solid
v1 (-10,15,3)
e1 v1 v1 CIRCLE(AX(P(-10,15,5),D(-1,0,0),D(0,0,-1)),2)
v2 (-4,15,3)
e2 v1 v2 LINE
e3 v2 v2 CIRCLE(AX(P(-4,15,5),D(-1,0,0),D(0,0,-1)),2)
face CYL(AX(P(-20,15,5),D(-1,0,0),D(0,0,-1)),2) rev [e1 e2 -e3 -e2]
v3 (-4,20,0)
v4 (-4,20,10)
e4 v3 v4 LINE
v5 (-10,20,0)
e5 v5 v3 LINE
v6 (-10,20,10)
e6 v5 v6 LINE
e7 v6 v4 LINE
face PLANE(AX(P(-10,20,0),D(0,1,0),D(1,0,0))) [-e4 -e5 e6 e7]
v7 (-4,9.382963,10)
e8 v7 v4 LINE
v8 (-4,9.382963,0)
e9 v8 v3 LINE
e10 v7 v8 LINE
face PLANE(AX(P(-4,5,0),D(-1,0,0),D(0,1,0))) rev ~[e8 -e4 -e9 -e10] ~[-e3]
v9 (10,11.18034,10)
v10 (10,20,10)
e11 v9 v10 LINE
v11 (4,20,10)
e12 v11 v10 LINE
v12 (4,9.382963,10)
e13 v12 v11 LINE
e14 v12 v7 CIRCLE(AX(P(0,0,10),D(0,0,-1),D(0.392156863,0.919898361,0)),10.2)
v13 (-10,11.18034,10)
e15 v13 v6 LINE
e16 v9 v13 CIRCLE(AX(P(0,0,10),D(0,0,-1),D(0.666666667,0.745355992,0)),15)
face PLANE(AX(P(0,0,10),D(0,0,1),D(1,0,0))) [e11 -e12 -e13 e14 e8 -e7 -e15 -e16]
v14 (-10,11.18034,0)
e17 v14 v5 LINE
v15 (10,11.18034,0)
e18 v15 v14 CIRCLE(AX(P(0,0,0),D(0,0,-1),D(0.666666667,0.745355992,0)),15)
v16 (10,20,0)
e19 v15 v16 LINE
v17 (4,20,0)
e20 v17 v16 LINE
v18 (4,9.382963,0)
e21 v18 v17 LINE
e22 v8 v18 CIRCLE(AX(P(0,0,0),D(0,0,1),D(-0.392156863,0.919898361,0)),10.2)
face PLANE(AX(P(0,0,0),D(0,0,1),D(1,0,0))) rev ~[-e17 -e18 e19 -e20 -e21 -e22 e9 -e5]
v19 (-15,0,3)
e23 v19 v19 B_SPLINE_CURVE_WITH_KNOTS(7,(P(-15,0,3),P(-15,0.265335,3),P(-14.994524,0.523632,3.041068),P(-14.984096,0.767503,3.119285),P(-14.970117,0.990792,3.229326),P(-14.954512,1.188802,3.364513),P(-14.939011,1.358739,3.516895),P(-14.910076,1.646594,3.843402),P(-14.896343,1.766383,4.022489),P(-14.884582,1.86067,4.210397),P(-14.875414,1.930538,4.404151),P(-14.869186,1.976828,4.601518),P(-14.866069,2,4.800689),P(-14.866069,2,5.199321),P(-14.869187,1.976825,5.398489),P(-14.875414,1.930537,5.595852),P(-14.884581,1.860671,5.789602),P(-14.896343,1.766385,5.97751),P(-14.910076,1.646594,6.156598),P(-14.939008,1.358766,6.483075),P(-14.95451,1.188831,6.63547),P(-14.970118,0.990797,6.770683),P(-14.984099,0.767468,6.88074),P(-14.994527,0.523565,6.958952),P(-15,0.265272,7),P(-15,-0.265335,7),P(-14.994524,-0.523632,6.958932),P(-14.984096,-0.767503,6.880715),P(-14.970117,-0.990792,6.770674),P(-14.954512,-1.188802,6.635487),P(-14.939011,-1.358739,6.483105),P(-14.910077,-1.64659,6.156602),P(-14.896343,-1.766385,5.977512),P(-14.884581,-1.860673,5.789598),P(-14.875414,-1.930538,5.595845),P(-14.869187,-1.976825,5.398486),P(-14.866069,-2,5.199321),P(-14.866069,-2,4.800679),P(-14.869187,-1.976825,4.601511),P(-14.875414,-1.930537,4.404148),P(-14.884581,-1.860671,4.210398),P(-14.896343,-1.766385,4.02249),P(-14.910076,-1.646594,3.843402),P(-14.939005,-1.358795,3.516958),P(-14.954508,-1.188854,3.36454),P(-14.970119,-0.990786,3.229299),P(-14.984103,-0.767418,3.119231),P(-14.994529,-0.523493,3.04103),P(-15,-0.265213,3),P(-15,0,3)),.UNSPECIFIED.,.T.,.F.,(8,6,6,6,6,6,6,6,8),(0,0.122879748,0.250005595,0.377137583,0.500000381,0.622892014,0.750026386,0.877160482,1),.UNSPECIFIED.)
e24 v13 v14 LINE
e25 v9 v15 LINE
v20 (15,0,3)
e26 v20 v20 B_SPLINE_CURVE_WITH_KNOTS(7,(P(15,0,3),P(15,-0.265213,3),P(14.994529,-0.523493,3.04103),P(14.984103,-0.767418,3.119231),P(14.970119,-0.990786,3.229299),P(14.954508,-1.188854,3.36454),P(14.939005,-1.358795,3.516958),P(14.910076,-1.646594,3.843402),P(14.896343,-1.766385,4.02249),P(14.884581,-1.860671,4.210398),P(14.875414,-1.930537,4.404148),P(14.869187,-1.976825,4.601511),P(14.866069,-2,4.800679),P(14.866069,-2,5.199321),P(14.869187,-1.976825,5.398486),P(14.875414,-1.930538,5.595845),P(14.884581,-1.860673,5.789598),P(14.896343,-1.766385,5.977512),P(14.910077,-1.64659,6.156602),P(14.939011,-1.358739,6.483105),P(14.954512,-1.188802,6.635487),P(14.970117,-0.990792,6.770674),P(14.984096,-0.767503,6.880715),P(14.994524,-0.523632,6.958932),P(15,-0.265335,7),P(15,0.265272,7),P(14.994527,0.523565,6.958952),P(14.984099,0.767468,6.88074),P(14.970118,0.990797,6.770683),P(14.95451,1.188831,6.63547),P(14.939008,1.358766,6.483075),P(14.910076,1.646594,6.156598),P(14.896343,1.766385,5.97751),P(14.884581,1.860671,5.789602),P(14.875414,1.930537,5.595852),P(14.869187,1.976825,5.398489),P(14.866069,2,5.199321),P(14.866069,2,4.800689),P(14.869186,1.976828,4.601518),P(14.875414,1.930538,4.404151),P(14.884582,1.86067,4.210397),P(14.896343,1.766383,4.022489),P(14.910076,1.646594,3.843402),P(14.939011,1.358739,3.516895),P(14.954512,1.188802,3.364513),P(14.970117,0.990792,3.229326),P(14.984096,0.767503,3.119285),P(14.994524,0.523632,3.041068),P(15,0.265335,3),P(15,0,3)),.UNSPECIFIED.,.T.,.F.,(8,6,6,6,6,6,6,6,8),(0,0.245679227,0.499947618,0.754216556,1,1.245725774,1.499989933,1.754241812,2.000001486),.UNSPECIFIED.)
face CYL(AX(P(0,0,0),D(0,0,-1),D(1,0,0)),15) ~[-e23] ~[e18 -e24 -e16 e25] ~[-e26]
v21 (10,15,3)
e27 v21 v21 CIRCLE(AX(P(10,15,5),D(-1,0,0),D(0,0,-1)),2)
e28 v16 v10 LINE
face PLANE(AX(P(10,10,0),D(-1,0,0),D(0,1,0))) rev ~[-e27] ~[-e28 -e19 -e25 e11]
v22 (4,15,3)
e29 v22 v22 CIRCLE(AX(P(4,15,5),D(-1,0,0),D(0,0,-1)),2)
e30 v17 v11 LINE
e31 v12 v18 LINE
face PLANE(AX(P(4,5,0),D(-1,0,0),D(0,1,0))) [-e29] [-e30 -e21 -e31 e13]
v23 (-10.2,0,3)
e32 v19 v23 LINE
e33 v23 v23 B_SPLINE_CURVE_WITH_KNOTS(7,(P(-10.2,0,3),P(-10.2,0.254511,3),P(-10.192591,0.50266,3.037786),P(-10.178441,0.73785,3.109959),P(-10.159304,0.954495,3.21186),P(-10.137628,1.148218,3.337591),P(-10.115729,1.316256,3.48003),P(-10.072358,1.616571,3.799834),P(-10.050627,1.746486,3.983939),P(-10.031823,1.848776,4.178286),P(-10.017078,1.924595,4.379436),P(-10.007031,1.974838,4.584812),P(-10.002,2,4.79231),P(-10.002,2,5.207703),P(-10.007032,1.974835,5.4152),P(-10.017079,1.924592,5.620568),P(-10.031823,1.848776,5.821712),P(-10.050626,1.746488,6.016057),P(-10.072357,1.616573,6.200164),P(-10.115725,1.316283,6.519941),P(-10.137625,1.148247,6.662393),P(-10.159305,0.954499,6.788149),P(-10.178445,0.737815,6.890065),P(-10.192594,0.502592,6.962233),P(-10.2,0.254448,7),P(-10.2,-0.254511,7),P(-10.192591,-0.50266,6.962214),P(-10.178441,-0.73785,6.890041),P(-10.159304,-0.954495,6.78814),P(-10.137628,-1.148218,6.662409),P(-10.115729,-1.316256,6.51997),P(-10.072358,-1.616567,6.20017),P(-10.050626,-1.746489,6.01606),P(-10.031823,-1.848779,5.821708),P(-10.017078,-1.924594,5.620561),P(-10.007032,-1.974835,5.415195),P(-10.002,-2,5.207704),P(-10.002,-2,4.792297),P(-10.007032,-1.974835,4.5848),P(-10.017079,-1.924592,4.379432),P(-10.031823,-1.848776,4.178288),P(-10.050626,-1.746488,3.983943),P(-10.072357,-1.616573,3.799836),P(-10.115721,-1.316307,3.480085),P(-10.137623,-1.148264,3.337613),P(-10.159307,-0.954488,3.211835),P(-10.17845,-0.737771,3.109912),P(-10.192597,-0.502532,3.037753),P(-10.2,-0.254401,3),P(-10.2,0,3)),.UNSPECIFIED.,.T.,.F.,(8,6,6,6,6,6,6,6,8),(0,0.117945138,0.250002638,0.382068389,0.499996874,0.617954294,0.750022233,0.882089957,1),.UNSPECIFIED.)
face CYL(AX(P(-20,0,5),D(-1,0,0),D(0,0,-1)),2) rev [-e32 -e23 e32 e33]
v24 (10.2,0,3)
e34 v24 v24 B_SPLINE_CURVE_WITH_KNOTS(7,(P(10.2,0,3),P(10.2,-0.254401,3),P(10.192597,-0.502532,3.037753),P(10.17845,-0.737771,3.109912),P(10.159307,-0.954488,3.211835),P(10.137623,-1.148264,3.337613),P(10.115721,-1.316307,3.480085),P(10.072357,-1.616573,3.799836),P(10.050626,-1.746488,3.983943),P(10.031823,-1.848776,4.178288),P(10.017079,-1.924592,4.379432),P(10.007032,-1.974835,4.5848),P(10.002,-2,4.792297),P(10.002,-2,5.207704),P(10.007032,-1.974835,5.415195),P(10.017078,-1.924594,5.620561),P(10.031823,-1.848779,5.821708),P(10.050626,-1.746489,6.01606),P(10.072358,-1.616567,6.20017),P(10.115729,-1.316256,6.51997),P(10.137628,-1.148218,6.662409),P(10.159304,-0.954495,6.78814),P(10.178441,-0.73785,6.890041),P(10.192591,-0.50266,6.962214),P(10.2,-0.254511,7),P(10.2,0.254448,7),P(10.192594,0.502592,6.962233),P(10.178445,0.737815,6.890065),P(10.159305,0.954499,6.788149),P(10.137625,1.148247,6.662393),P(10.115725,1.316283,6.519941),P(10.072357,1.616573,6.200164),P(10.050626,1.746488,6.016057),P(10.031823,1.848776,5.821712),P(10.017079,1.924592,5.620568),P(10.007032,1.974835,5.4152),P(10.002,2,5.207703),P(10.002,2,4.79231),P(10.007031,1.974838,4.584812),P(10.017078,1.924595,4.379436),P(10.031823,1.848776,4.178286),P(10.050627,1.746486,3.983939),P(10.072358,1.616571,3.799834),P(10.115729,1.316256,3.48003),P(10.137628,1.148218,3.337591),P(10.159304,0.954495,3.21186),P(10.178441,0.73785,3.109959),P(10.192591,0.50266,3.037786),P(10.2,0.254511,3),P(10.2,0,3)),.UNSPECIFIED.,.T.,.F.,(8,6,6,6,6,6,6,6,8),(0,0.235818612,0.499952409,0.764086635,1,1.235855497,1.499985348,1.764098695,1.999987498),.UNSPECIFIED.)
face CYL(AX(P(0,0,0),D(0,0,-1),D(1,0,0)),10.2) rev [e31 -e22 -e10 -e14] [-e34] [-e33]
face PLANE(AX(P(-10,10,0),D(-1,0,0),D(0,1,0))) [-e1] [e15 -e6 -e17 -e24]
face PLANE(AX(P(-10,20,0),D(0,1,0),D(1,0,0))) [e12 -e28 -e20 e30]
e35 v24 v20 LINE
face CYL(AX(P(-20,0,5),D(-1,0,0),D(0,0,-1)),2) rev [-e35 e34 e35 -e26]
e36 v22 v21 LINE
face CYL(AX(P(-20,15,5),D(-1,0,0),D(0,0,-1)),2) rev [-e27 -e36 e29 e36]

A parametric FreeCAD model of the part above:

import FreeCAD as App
import Part
import Sketcher

V = App.Vector

doc = App.newDocument("Part")
params = doc.addObject("Spreadsheet::Sheet", "Params")
for row, (alias, value) in enumerate([
    ("sketch1_diameter", "4 mm"),
    ("pad1_length", "40 mm"),
    ("sketch2_diameter", "4 mm"),
    ("pad2_length", "40 mm"),
    ("sketch3_diameter", "20.4 mm"),
    ("pad3_length", "10 mm"),
    ("sketch4_width", "8 mm"),
    ("sketch4_height", "15 mm"),
    ("pad4_length", "10 mm"),
    ("sketch5_width", "20 mm"),
    ("sketch5_height", "10 mm"),
    ("pad5_length", "10 mm"),
    ("sketch6_diameter", "30 mm"),
    ("pad6_length", "10 mm"),
], start=1):
    params.set(f"A{row}", alias)
    params.set(f"B{row}", "=" + value)
    params.setAlias(f"B{row}", alias)

body = doc.addObject("PartDesign::Body", "Body")

# Sketch on YZ plane
sketch1 = body.newObject("Sketcher::SketchObject", "Sketch")
sketch1.AttachmentSupport = (doc.getObject("YZ_Plane"), [""])
sketch1.MapMode = "FlatFace"
sketch1.AttachmentOffset = App.Placement(V(0, 0, -20), App.Rotation())
sketch1.addGeometry(Part.Circle(V(15, 5, 0), V(0, 0, 1), 2), False)
sketch1.addConstraint(Sketcher.Constraint("Diameter", 0, 4.0))
sketch1.addConstraint(Sketcher.Constraint("DistanceX", -1, 1, 0, 3, 15.0))
sketch1.addConstraint(Sketcher.Constraint("DistanceY", -1, 1, 0, 3, 5.0))
sketch1.setExpression("Constraints[0]", "Params.sketch1_diameter")
pad1 = body.newObject("PartDesign::Pad", "Pad")
pad1.Profile = sketch1
pad1.setExpression("Length", "Params.pad1_length")
body2 = doc.addObject("PartDesign::Body", "Body001")

# Sketch on YZ plane
sketch2 = body2.newObject("Sketcher::SketchObject", "Sketch001")
sketch2.AttachmentSupport = (doc.getObject("YZ_Plane001"), [""])
sketch2.MapMode = "FlatFace"
sketch2.AttachmentOffset = App.Placement(V(0, 0, -20), App.Rotation())
sketch2.addGeometry(Part.Circle(V(0, 5, 0), V(0, 0, 1), 2), False)
sketch2.addConstraint(Sketcher.Constraint("PointOnObject", 0, 3, -2))
sketch2.addConstraint(Sketcher.Constraint("Diameter", 0, 4.0))
sketch2.addConstraint(Sketcher.Constraint("DistanceY", -1, 1, 0, 3, 5.0))
sketch2.setExpression("Constraints[1]", "Params.sketch2_diameter")
pad2 = body2.newObject("PartDesign::Pad", "Pad001")
pad2.Profile = sketch2
pad2.setExpression("Length", "Params.pad2_length")
body3 = doc.addObject("PartDesign::Body", "Body002")

# Sketch on XY plane
sketch3 = body3.newObject("Sketcher::SketchObject", "Sketch002")
sketch3.AttachmentSupport = (doc.getObject("XY_Plane002"), [""])
sketch3.MapMode = "FlatFace"
sketch3.addGeometry(Part.Circle(V(0, 0, 0), V(0, 0, 1), 10), False)
sketch3.addConstraint(Sketcher.Constraint("Coincident", 0, 3, -1, 1))
sketch3.addConstraint(Sketcher.Constraint("Diameter", 0, 20.4))
sketch3.setExpression("Constraints[1]", "Params.sketch3_diameter")
pad3 = body3.newObject("PartDesign::Pad", "Pad002")
pad3.Profile = sketch3
pad3.setExpression("Length", "Params.pad3_length")
body4 = doc.addObject("PartDesign::Body", "Body003")
body4.AllowCompound = True

# Sketch on XY plane
sketch4 = body4.newObject("Sketcher::SketchObject", "Sketch003")
sketch4.AttachmentSupport = (doc.getObject("XY_Plane003"), [""])
sketch4.MapMode = "FlatFace"
sketch4.addGeometry(Part.LineSegment(V(-4, 20, 0), V(-4, 5, 0)), False)
sketch4.addGeometry(Part.LineSegment(V(-4, 5, 0), V(4, 5, 0)), False)
sketch4.addGeometry(Part.LineSegment(V(4, 5, 0), V(4, 20, 0)), False)
sketch4.addGeometry(Part.LineSegment(V(4, 20, 0), V(-4, 20, 0)), False)
sketch4.addConstraint(Sketcher.Constraint("Coincident", 0, 2, 1, 1))
sketch4.addConstraint(Sketcher.Constraint("Coincident", 1, 2, 2, 1))
sketch4.addConstraint(Sketcher.Constraint("Coincident", 2, 2, 3, 1))
sketch4.addConstraint(Sketcher.Constraint("Coincident", 3, 2, 0, 1))
sketch4.addConstraint(Sketcher.Constraint("Vertical", 0))
sketch4.addConstraint(Sketcher.Constraint("Horizontal", 1))
sketch4.addConstraint(Sketcher.Constraint("Vertical", 2))
sketch4.addConstraint(Sketcher.Constraint("Horizontal", 3))
sketch4.addConstraint(Sketcher.Constraint("DistanceX", 1, 1, 1, 2, 8.0))
sketch4.addConstraint(Sketcher.Constraint("DistanceY", 0, 2, 0, 1, 15.0))
sketch4.addConstraint(Sketcher.Constraint("DistanceX", 0, 2, -1, 1, 4.0))
sketch4.addConstraint(Sketcher.Constraint("DistanceY", -1, 1, 0, 2, 5.0))
sketch4.setExpression("Constraints[8]", "Params.sketch4_width")
sketch4.setExpression("Constraints[9]", "Params.sketch4_height")
pad4 = body4.newObject("PartDesign::Pad", "Pad003")
pad4.Profile = sketch4
pad4.setExpression("Length", "Params.pad4_length")
doc.recompute()

boolean = body4.newObject("PartDesign::Boolean", "Boolean")
boolean.Type = "Fuse"
boolean.addObjects([body])
doc.recompute()

boolean2 = body4.newObject("PartDesign::Boolean", "Boolean001")
boolean2.Type = "Fuse"
boolean2.addObjects([body2])
doc.recompute()

boolean3 = body4.newObject("PartDesign::Boolean", "Boolean002")
boolean3.Type = "Fuse"
boolean3.addObjects([body3])
body5 = doc.addObject("PartDesign::Body", "Body004")

# Sketch on XY plane
sketch5 = body5.newObject("Sketcher::SketchObject", "Sketch004")
sketch5.AttachmentSupport = (doc.getObject("XY_Plane004"), [""])
sketch5.MapMode = "FlatFace"
sketch5.addGeometry(Part.LineSegment(V(-10, 20, 0), V(-10, 10, 0)), False)
sketch5.addGeometry(Part.LineSegment(V(-10, 10, 0), V(10, 10, 0)), False)
sketch5.addGeometry(Part.LineSegment(V(10, 10, 0), V(10, 20, 0)), False)
sketch5.addGeometry(Part.LineSegment(V(10, 20, 0), V(-10, 20, 0)), False)
sketch5.addConstraint(Sketcher.Constraint("Coincident", 0, 2, 1, 1))
sketch5.addConstraint(Sketcher.Constraint("Coincident", 1, 2, 2, 1))
sketch5.addConstraint(Sketcher.Constraint("Coincident", 2, 2, 3, 1))
sketch5.addConstraint(Sketcher.Constraint("Coincident", 3, 2, 0, 1))
sketch5.addConstraint(Sketcher.Constraint("Vertical", 0))
sketch5.addConstraint(Sketcher.Constraint("Horizontal", 1))
sketch5.addConstraint(Sketcher.Constraint("Vertical", 2))
sketch5.addConstraint(Sketcher.Constraint("Horizontal", 3))
sketch5.addConstraint(Sketcher.Constraint("DistanceX", 1, 1, 1, 2, 20.0))
sketch5.addConstraint(Sketcher.Constraint("DistanceY", 0, 2, 0, 1, 10.0))
sketch5.addConstraint(Sketcher.Constraint("DistanceX", 0, 2, -1, 1, 10.0))
sketch5.addConstraint(Sketcher.Constraint("DistanceY", -1, 1, 0, 2, 10.0))
sketch5.setExpression("Constraints[8]", "Params.sketch5_width")
sketch5.setExpression("Constraints[9]", "Params.sketch5_height")
pad5 = body5.newObject("PartDesign::Pad", "Pad004")
pad5.Profile = sketch5
pad5.setExpression("Length", "Params.pad5_length")
body6 = doc.addObject("PartDesign::Body", "Body005")

# Sketch on XY plane
sketch6 = body6.newObject("Sketcher::SketchObject", "Sketch005")
sketch6.AttachmentSupport = (doc.getObject("XY_Plane005"), [""])
sketch6.MapMode = "FlatFace"
sketch6.addGeometry(Part.Circle(V(0, 0, 0), V(0, 0, 1), 15), False)
sketch6.addConstraint(Sketcher.Constraint("Coincident", 0, 3, -1, 1))
sketch6.addConstraint(Sketcher.Constraint("Diameter", 0, 30.0))
sketch6.setExpression("Constraints[1]", "Params.sketch6_diameter")
pad6 = body6.newObject("PartDesign::Pad", "Pad005")
pad6.Profile = sketch6
pad6.setExpression("Length", "Params.pad6_length")
doc.recompute()

boolean4 = body6.newObject("PartDesign::Boolean", "Boolean003")
boolean4.Type = "Fuse"
boolean4.addObjects([body5])
doc.recompute()

boolean5 = body6.newObject("PartDesign::Boolean", "Boolean004")
boolean5.Type = "Cut"
boolean5.addObjects([body4])

doc.recompute()
